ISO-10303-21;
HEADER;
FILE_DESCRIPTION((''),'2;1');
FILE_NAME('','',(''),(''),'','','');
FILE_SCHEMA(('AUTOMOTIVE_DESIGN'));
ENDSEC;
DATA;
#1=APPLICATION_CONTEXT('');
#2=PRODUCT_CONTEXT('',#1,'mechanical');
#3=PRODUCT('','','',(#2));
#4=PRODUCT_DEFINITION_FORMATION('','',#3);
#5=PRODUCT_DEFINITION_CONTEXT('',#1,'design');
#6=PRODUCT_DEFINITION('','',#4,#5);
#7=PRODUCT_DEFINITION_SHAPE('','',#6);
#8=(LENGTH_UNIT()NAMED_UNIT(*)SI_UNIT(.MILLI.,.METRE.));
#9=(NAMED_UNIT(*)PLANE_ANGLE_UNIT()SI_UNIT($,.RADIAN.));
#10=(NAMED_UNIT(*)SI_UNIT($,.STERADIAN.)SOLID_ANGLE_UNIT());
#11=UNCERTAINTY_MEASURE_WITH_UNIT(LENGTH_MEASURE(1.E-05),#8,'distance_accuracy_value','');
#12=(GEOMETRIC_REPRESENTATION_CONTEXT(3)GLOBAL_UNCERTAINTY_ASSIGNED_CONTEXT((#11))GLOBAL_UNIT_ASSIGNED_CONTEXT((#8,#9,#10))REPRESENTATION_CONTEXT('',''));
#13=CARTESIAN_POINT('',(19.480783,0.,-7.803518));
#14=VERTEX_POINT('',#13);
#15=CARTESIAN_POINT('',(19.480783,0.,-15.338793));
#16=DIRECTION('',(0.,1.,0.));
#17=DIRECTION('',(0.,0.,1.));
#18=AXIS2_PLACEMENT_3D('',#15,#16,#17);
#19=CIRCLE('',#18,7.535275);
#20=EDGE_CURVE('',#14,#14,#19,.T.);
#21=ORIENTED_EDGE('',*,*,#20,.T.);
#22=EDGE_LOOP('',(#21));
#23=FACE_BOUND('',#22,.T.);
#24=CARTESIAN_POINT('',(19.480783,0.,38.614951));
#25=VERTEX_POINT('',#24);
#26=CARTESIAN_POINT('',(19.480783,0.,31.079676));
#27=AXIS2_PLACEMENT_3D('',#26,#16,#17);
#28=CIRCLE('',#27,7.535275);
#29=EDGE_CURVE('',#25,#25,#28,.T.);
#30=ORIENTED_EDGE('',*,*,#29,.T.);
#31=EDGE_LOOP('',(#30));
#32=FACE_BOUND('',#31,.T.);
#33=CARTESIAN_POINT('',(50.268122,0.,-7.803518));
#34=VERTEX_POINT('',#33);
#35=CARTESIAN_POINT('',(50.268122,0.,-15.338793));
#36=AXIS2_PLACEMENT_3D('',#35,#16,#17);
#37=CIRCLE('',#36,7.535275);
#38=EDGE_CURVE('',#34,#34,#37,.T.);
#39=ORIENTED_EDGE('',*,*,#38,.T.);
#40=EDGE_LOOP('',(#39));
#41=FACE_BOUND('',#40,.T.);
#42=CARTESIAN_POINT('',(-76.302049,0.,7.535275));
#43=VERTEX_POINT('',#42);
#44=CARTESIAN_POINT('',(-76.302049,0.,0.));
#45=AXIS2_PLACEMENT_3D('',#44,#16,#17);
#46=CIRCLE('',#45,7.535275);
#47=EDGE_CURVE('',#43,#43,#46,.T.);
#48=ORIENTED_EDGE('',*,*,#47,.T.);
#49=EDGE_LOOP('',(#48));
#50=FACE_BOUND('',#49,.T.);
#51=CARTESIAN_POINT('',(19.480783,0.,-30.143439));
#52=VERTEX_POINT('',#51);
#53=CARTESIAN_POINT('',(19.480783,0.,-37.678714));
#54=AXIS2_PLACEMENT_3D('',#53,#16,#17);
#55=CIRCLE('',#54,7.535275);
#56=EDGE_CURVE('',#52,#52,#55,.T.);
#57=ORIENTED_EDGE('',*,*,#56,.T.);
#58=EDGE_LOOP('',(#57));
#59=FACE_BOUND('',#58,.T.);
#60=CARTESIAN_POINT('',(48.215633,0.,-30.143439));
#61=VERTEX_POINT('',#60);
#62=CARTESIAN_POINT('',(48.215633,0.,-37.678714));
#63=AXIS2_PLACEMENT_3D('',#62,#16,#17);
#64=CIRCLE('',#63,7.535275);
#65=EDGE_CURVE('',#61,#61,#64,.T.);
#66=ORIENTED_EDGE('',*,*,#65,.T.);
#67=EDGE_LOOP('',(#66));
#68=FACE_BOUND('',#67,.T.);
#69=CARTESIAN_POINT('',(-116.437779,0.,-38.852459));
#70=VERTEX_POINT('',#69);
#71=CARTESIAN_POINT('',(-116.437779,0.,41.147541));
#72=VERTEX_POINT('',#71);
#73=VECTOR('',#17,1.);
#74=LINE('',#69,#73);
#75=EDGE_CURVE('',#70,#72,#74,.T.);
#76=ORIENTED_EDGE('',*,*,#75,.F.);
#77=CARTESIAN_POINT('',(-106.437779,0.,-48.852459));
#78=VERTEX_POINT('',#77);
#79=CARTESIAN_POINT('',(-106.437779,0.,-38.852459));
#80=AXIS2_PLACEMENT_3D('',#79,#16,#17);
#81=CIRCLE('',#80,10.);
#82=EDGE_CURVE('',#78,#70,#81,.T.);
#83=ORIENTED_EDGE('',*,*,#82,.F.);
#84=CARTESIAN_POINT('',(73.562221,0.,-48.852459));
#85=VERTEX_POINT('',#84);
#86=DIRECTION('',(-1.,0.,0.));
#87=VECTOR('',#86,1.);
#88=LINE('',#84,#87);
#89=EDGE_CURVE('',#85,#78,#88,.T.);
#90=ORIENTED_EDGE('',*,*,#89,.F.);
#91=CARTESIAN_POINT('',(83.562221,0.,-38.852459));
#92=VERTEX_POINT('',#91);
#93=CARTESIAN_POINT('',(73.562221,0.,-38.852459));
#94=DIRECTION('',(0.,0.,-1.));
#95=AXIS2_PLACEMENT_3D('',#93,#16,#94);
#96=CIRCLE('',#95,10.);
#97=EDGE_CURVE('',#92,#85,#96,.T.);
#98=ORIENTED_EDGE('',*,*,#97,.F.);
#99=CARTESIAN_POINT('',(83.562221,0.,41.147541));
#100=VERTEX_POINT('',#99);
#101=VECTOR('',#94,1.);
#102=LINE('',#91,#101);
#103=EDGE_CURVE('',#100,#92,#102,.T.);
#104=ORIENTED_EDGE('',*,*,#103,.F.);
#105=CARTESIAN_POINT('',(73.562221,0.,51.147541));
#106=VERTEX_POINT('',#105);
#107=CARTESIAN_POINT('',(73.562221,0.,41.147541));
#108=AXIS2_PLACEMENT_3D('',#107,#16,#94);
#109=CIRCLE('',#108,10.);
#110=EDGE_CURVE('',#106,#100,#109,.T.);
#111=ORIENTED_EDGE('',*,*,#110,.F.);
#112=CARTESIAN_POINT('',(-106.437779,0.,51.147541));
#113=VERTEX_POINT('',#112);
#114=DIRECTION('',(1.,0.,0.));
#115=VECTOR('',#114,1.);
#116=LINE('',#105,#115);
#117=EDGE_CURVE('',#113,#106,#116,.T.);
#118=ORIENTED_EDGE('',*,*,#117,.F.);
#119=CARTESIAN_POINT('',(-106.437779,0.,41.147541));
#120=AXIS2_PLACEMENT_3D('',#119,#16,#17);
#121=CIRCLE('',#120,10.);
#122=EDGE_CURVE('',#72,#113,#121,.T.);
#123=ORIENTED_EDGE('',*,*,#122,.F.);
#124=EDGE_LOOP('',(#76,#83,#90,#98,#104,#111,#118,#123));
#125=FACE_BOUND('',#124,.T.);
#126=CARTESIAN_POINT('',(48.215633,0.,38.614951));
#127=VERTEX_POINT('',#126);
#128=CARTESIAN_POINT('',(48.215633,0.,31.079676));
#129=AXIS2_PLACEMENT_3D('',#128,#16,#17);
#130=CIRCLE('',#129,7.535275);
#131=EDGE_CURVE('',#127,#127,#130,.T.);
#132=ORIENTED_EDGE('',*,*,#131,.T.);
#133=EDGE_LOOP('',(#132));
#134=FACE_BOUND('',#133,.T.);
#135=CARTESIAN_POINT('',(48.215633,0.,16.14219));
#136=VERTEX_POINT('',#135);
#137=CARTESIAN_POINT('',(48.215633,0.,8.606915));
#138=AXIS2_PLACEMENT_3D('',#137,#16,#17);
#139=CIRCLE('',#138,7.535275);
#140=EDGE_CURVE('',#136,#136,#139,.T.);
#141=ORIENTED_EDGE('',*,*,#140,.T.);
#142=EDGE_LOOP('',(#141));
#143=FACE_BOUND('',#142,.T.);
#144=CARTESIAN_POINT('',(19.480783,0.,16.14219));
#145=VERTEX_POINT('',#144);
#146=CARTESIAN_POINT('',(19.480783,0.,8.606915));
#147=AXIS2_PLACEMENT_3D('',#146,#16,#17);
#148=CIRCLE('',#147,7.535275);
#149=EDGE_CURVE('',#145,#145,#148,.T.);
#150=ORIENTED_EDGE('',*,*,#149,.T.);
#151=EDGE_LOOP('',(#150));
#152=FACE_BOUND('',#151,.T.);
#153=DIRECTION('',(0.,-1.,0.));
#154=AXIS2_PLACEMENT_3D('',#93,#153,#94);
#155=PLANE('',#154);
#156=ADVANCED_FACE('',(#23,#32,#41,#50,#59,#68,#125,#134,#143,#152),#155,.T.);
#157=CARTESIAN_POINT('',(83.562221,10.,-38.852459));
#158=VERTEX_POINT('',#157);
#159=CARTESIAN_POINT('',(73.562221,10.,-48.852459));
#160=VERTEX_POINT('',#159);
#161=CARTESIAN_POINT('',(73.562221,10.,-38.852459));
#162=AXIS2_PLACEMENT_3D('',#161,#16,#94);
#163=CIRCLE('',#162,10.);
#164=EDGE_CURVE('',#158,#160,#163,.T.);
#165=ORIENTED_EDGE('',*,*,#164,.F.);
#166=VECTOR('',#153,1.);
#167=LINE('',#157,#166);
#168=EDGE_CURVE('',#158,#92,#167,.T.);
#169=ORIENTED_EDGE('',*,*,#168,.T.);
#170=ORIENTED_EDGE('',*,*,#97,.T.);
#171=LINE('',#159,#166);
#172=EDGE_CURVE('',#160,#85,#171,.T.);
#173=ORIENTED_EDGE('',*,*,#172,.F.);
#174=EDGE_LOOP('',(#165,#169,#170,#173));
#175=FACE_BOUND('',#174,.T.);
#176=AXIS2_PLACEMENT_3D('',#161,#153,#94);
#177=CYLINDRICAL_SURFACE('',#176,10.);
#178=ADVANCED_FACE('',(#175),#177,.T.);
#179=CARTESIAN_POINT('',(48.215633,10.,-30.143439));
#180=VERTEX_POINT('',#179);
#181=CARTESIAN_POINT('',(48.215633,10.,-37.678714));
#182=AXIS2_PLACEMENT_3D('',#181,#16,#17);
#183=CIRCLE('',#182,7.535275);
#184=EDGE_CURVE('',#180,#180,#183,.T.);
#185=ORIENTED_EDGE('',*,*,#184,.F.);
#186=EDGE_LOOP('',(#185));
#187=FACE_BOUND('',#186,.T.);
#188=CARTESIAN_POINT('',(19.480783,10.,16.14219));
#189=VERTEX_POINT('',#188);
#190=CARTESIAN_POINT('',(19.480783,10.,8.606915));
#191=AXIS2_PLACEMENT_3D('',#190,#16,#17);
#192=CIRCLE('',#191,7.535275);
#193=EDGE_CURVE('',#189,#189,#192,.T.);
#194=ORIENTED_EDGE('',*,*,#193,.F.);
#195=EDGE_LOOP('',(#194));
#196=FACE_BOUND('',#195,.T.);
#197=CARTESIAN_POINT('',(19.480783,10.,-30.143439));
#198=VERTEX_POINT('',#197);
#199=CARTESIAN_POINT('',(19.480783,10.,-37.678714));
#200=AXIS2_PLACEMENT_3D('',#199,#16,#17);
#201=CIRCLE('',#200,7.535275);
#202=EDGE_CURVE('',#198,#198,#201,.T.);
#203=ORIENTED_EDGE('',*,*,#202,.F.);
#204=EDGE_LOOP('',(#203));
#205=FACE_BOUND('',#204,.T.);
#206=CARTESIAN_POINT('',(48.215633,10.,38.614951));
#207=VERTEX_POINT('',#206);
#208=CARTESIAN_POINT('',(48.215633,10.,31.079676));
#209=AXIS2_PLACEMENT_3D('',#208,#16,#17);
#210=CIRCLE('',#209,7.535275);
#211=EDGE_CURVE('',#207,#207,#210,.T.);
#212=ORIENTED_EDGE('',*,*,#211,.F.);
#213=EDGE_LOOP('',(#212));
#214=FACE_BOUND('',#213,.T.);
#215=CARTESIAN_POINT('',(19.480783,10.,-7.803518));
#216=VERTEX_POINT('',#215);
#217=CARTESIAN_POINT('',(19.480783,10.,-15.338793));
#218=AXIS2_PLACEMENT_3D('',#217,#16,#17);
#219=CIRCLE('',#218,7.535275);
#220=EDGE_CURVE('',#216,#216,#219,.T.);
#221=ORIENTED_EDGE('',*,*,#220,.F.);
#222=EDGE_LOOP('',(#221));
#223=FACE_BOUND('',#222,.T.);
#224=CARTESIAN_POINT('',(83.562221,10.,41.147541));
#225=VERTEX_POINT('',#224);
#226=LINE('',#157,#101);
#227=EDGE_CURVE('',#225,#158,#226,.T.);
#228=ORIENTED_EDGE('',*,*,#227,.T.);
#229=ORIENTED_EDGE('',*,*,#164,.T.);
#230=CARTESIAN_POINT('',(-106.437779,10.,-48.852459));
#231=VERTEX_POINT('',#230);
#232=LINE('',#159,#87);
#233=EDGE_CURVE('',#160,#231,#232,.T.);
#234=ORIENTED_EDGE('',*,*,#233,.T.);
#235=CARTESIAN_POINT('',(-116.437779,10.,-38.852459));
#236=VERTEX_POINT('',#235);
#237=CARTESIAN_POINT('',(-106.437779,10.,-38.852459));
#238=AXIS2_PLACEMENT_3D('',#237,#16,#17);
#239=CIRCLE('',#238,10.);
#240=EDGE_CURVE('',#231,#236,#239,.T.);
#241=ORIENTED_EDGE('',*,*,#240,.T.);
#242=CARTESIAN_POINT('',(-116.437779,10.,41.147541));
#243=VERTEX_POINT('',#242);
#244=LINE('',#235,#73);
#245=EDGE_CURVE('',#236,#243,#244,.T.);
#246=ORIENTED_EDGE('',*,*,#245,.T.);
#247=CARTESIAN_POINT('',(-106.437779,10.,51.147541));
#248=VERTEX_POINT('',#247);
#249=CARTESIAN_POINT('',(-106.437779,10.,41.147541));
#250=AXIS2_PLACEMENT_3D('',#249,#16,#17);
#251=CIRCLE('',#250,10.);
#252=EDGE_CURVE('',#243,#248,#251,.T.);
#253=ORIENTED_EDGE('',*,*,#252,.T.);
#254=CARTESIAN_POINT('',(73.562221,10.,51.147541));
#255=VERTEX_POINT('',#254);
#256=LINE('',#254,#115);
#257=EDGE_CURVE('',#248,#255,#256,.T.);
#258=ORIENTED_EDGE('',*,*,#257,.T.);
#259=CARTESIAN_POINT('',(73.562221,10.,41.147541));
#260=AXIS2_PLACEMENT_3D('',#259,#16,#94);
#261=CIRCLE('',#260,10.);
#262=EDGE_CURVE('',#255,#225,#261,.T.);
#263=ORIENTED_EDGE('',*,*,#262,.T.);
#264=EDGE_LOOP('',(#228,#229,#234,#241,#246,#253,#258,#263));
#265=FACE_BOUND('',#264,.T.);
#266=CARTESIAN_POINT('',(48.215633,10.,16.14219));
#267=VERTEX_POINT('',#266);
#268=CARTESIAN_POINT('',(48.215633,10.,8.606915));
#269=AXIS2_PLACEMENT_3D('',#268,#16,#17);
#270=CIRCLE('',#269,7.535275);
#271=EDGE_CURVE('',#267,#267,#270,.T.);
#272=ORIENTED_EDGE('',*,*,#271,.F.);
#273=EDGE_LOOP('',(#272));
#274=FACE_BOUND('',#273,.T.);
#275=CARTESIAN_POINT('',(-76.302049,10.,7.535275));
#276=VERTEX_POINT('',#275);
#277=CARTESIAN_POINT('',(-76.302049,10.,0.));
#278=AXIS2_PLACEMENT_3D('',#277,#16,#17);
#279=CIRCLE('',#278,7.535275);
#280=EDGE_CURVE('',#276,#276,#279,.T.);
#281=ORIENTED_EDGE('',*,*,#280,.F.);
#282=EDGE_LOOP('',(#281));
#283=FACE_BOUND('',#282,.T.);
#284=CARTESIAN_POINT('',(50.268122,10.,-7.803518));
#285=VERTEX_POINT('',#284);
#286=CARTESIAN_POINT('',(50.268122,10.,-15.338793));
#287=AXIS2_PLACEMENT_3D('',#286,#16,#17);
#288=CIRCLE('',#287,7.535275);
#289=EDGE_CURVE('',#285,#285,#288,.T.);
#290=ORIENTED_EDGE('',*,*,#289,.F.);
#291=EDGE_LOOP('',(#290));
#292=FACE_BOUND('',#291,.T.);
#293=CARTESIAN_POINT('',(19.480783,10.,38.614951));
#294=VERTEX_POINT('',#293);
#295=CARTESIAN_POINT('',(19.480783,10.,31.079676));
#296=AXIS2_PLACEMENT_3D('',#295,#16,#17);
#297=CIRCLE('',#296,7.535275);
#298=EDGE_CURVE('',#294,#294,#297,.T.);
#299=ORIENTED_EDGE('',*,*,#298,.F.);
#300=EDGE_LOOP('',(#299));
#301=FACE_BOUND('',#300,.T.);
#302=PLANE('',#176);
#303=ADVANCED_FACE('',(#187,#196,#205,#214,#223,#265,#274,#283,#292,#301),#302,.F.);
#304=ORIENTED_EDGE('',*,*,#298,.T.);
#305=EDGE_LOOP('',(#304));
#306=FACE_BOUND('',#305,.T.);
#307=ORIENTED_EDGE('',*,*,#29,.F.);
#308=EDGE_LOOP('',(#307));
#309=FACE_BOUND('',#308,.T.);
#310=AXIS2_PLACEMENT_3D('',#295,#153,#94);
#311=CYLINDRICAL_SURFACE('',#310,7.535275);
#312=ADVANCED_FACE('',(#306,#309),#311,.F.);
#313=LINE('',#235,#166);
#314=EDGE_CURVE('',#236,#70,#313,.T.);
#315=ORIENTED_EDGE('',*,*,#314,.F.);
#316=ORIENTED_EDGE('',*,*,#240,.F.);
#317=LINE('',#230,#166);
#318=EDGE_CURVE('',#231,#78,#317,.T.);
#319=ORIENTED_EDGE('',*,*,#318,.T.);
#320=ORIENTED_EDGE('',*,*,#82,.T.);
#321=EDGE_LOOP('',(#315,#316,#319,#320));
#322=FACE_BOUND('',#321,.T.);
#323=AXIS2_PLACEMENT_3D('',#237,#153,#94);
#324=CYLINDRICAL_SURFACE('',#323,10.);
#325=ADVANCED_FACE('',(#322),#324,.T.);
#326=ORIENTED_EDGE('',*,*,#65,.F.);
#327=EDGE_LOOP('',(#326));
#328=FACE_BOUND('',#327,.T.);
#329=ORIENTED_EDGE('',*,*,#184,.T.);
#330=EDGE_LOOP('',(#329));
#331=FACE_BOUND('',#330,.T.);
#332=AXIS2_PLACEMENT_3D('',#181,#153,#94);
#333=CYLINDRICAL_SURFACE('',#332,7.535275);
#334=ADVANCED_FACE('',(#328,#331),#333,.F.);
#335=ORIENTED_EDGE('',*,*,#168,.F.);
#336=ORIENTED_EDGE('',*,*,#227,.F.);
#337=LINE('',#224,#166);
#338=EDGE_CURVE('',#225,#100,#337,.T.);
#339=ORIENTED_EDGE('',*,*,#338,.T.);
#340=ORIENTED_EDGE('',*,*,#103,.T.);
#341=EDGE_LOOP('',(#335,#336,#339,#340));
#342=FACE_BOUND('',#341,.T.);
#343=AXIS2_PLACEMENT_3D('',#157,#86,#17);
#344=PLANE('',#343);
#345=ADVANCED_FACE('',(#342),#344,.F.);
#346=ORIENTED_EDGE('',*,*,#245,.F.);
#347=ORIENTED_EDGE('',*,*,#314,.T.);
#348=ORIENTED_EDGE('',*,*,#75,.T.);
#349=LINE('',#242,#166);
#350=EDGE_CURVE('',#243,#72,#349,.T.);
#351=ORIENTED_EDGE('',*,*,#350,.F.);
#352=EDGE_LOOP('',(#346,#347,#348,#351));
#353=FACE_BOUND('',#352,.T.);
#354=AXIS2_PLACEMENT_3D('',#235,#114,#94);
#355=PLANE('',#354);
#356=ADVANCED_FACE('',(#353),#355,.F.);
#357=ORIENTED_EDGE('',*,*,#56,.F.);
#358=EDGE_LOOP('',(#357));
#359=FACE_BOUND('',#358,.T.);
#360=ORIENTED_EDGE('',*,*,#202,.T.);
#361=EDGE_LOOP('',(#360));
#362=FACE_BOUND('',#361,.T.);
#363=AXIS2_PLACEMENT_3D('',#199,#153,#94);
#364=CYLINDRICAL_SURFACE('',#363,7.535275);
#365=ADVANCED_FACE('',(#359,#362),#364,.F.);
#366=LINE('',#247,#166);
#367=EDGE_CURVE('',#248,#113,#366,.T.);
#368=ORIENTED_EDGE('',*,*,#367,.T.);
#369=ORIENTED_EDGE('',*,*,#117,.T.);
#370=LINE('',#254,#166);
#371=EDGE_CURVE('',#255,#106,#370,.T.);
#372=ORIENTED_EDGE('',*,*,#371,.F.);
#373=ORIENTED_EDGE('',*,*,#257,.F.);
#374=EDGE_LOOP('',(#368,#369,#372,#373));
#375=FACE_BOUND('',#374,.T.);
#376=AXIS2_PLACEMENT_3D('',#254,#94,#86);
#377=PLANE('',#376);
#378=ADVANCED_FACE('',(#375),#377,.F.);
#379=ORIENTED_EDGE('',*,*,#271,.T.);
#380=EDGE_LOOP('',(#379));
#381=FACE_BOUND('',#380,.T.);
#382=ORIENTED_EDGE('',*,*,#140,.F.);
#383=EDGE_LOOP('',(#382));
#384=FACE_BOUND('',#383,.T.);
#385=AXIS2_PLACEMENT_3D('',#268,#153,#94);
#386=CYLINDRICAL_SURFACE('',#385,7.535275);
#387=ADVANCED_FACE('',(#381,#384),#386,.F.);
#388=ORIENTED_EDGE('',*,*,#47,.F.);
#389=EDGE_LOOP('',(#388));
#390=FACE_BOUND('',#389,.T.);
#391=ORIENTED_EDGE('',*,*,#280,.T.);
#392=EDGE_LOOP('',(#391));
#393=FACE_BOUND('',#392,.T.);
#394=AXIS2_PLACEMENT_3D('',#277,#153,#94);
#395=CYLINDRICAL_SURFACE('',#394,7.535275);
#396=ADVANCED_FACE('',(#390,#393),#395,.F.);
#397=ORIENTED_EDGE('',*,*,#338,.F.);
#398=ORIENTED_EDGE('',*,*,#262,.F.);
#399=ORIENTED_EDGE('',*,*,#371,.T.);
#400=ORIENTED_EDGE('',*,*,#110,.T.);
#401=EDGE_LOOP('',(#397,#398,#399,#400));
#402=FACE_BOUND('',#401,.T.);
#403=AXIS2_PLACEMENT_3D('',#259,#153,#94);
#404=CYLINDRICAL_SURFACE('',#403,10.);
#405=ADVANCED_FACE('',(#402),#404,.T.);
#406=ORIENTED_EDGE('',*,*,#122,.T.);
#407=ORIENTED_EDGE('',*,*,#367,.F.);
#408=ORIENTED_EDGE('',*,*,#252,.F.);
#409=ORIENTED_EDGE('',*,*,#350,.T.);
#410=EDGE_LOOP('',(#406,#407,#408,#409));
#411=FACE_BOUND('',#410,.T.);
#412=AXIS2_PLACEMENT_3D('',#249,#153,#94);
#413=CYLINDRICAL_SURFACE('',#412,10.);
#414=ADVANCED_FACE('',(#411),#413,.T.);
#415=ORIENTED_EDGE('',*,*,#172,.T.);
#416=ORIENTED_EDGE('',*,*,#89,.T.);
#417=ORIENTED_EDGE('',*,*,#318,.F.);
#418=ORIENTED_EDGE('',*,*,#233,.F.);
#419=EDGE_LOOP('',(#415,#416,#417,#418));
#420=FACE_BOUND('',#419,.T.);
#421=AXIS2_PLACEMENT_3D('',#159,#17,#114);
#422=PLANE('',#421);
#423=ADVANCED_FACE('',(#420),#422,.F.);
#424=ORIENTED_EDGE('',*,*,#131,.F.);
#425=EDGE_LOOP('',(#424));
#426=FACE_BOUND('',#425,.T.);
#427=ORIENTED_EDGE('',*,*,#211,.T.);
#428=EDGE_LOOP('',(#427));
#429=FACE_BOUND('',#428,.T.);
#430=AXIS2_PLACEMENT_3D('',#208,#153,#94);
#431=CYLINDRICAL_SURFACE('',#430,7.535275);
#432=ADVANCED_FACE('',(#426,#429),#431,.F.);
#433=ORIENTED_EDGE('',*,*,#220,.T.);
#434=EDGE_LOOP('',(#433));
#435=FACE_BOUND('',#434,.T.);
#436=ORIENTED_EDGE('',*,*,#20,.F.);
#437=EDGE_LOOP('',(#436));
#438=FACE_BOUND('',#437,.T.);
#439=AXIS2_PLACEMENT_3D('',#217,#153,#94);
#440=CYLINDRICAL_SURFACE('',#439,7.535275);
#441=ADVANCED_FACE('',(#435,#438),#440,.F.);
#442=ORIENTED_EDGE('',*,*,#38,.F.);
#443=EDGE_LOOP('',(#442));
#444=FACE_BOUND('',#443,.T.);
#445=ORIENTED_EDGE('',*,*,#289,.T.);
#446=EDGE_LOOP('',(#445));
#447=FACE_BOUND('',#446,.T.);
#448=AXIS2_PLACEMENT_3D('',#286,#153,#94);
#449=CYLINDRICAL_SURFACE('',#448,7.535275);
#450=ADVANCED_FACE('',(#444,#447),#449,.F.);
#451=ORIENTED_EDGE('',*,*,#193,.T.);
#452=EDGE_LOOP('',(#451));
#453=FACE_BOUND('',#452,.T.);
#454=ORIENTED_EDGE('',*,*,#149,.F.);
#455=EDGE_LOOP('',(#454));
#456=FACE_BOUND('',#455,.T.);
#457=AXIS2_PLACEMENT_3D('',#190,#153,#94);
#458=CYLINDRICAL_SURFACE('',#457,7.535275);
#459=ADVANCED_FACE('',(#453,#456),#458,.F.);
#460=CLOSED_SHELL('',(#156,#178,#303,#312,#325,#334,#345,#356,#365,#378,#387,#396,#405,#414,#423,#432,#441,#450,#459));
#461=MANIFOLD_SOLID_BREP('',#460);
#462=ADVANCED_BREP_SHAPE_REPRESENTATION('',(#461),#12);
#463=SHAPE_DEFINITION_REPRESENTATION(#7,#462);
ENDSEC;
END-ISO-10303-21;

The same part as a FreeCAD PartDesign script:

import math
import FreeCAD as App
import Part
import Sketcher
from FreeCAD import Vector
Q = App.Units.Quantity

doc = App.newDocument("Part")
body = doc.addObject("PartDesign::Body", "Body")

sketch1 = body.newObject("Sketcher::SketchObject", "Sketch")
sketch1.AttachmentSupport = (doc.getObject("XZ_Plane"), [""])
sketch1.MapMode = "FlatFace"
sketch1.addGeometry([
    Part.LineSegment(Vector(74, -49, 0), Vector(-106, -49, 0)),
    Part.ArcOfCircle(Part.Circle(Vector(-106, -39, 0), Vector(0, 0, 1), 10), math.radians(180), math.radians(270)),
    Part.LineSegment(Vector(-116, -39, 0), Vector(-116, 41, 0)),
    Part.ArcOfCircle(Part.Circle(Vector(-106, 41, 0), Vector(0, 0, 1), 10), math.radians(90), math.radians(180)),
    Part.LineSegment(Vector(-106, 51, 0), Vector(74, 51, 0)),
    Part.ArcOfCircle(Part.Circle(Vector(74, 41, 0), Vector(0, 0, 1), 10), math.radians(0), math.radians(90)),
    Part.LineSegment(Vector(84, 41, 0), Vector(84, -39, 0)),
    Part.ArcOfCircle(Part.Circle(Vector(74, -39, 0), Vector(0, 0, 1), 10), math.radians(-90), math.radians(0)),
], False)
sketch1.addConstraint([
    Sketcher.Constraint("Tangent", 0, 2, 1, 2),
    Sketcher.Constraint("Tangent", 1, 1, 2, 1),
    Sketcher.Constraint("Tangent", 2, 2, 3, 2),
    Sketcher.Constraint("Tangent", 3, 1, 4, 1),
    Sketcher.Constraint("Tangent", 4, 2, 5, 2),
    Sketcher.Constraint("Tangent", 5, 1, 6, 1),
    Sketcher.Constraint("Tangent", 6, 2, 7, 2),
    Sketcher.Constraint("Tangent", 7, 1, 0, 1),
    Sketcher.Constraint("Horizontal", 0),
    Sketcher.Constraint("Vertical", 2),
    Sketcher.Constraint("Horizontal", 4),
    Sketcher.Constraint("Vertical", 6),
    Sketcher.Constraint("Equal", 1, 3),
    Sketcher.Constraint("Equal", 3, 5),
    Sketcher.Constraint("Equal", 5, 7),
    Sketcher.Constraint("Radius", 1, Q("10 mm")),
    Sketcher.Constraint("DistanceX", 0, 2, 0, 1, Q("180 mm")),
    Sketcher.Constraint("DistanceY", 2, 1, 2, 2, Q("80 mm")),
    Sketcher.Constraint("DistanceX", 1, 3, -1, 1, Q("106.437779 mm")),
    Sketcher.Constraint("DistanceY", 1, 3, -1, 1, Q("38.852459 mm")),
])
pad1 = body.newObject("PartDesign::Pad", "Pad")
pad1.Profile = sketch1
pad1.Length = 10
pad1.Reversed = True

sketch2 = body.newObject("Sketcher::SketchObject", "Sketch001")
sketch2.AttachmentSupport = (doc.getObject("XZ_Plane"), [""])
sketch2.MapMode = "FlatFace"
sketch2.addGeometry([
    Part.Circle(Vector(48, -38, 0), Vector(0, 0, 1), 8),
    Part.Circle(Vector(19, -38, 0), Vector(0, 0, 1), 8),
    Part.Circle(Vector(48, 31, 0), Vector(0, 0, 1), 8),
    Part.Circle(Vector(19, 31, 0), Vector(0, 0, 1), 8),
    Part.Circle(Vector(-76, 0, 0), Vector(0, 0, 1), 8),
    Part.Circle(Vector(19, 9, 0), Vector(0, 0, 1), 8),
    Part.Circle(Vector(48, 9, 0), Vector(0, 0, 1), 8),
    Part.Circle(Vector(19, -15, 0), Vector(0, 0, 1), 8),
    Part.Circle(Vector(50, -15, 0), Vector(0, 0, 1), 8),
], False)
sketch2.addConstraint([
    Sketcher.Constraint("Equal", 0, 1),
    Sketcher.Constraint("Equal", 1, 2),
    Sketcher.Constraint("Equal", 2, 3),
    Sketcher.Constraint("Equal", 3, 4),
    Sketcher.Constraint("Equal", 4, 5),
    Sketcher.Constraint("Equal", 5, 6),
    Sketcher.Constraint("Equal", 6, 7),
    Sketcher.Constraint("Equal", 7, 8),
    Sketcher.Constraint("PointOnObject", 4, 3, -1),
    Sketcher.Constraint("Horizontal", 0, 3, 1, 3),
    Sketcher.Constraint("Horizontal", 2, 3, 3, 3),
    Sketcher.Constraint("Horizontal", 5, 3, 6, 3),
    Sketcher.Constraint("Horizontal", 7, 3, 8, 3),
    Sketcher.Constraint("Vertical", 0, 3, 2, 3),
    Sketcher.Constraint("Vertical", 1, 3, 3, 3),
    Sketcher.Constraint("Vertical", 3, 3, 5, 3),
    Sketcher.Constraint("Vertical", 2, 3, 6, 3),
    Sketcher.Constraint("Vertical", 5, 3, 7, 3),
    Sketcher.Constraint("Diameter", 0, Q("15.070551 mm")),
    Sketcher.Constraint("DistanceX", 4, 3, -1, 1, Q("76.302049 mm")),
    Sketcher.Constraint("DistanceX", 1, 3, 0, 3, Q("28.73485 mm")),
    Sketcher.Constraint("DistanceY", 0, 3, 2, 3, Q("68.75839 mm")),
    Sketcher.Constraint("DistanceX", 4, 3, 2, 3, Q("124.517682 mm")),
    Sketcher.Constraint("DistanceY", 5, 3, 3, 3, Q("22.472761 mm")),
    Sketcher.Constraint("DistanceY", 1, 3, 7, 3, Q("22.339921 mm")),
    Sketcher.Constraint("DistanceX", 0, 3, 8, 3, Q("2.052489 mm")),
    Sketcher.Constraint("DistanceY", 0, 3, -1, 1, Q("37.678714 mm")),
])
pocket1 = body.newObject("PartDesign::Pocket", "Pocket")
pocket1.Profile = sketch2
pocket1.Length = 10

doc.recompute()
